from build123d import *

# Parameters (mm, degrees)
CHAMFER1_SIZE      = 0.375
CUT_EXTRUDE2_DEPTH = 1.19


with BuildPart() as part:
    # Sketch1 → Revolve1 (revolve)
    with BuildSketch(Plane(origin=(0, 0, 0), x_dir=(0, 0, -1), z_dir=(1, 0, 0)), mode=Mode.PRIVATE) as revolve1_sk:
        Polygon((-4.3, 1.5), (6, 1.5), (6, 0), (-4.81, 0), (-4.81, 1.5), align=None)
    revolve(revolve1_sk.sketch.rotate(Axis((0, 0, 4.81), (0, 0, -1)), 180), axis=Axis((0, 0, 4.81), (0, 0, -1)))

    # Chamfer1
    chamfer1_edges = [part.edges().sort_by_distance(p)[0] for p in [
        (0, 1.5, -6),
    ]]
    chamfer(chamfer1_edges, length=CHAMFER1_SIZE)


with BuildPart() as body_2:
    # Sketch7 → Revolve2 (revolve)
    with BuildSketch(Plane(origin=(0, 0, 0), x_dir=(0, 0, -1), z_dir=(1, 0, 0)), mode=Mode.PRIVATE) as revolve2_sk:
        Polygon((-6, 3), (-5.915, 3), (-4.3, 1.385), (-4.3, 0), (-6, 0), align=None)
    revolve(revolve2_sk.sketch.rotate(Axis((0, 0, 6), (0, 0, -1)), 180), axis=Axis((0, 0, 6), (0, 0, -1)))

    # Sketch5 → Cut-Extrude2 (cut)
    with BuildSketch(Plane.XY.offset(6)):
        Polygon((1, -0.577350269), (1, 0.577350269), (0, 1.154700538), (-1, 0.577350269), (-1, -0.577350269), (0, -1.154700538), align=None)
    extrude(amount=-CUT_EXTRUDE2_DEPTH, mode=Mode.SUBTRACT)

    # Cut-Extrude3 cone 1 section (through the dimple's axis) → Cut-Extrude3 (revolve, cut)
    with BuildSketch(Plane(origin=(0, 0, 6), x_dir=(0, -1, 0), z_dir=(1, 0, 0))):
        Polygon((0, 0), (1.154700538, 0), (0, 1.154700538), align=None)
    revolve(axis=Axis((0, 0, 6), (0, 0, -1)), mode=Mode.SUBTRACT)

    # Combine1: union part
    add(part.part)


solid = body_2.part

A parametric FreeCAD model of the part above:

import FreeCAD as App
import Part
import Sketcher
from FreeCAD import Vector
Q = App.Units.Quantity


def edges_at(feature, points):
    """Names of the edges that pass closest to the given points."""
    edges = feature.Shape.Edges
    near = lambda p: min(range(len(edges)), key=lambda i: edges[i].distToShape(Part.Vertex(*p))[0])
    return sorted({f"Edge{near(p) + 1}" for p in points})


def add_polygon(sketch, points):
    """Adds a closed chain of lines whose ends are joined by coincident constraints."""
    first, n = sketch.GeometryCount, len(points)
    for a, b in zip(points, points[1:] + points[:1]):
        sketch.addGeometry(Part.LineSegment(App.Vector(*a, 0), App.Vector(*b, 0)), False)
    for i in range(n):
        sketch.addConstraint(Sketcher.Constraint("Coincident", first + i, 2, first + (i + 1) % n, 1))

doc = App.newDocument("Part")
params = doc.addObject("Spreadsheet::Sheet", "Params")
for row, (alias, value) in enumerate([
    ("sketch1_width", "1.5 mm"),
    ("sketch1_height", "10.81 mm"),
    ("revolution_angle", "360 deg"),
    ("chamfer_size", "0.375 mm"),
    ("sketch2_width", "3 mm"),
    ("sketch2_height", "1.7 mm"),
    ("revolution2_angle", "360 deg"),
    ("pocket1_length", "1.19 mm"),
    ("groove_angle", "360 deg"),
], start=1):
    params.set(f"A{row}", alias)
    params.set(f"B{row}", "=" + value)
    params.setAlias(f"B{row}", alias)

body = doc.addObject("PartDesign::Body", "Body")

# Sketch on YZ plane
sketch1 = doc.addObject("Sketcher::SketchObject", "Sketch")
body.addObject(sketch1)
sketch1.AttachmentSupport = (doc.YZ_Plane, [""])
sketch1.MapMode = "FlatFace"
add_polygon(sketch1, [(1.5, -6), (1.5, 4.81), (0, 4.81), (0, -6)])  # lines 0-3
sketch1.addConstraint([
    Sketcher.Constraint("Vertical", 0),
    Sketcher.Constraint("Horizontal", 1),
    Sketcher.Constraint("Vertical", 2),
    Sketcher.Constraint("Horizontal", 3),
    Sketcher.Constraint("PointOnObject", 1, 2, -2),
    Sketcher.Constraint("DistanceX", 1, 2, 1, 1, 1.5),
    Sketcher.Constraint("DistanceY", 2, 2, -1, 1, 6.0),
    Sketcher.Constraint("DistanceY", 0, 1, 0, 2, 10.81),
])
sketch1.setExpression("Constraints[9]", "Params.sketch1_width")
sketch1.setExpression("Constraints[11]", "Params.sketch1_height")
revolution = doc.addObject("PartDesign::Revolution", "Revolution")
body.addObject(revolution)
revolution.Profile = sketch1
revolution.ReferenceAxis = (sketch1, ["V_Axis"])
revolution.setExpression("Angle", "Params.revolution_angle")
doc.recompute()

chamfer = doc.addObject("PartDesign::Chamfer", "Chamfer")
body.addObject(chamfer)
chamfer.Base = (revolution, edges_at(revolution, [(0, 1.5, -6)]))
chamfer.setExpression("Size", "Params.chamfer_size")
body2 = doc.addObject("PartDesign::Body", "Body001")

# Sketch on YZ plane
sketch2 = doc.addObject("Sketcher::SketchObject", "Sketch001")
body2.addObject(sketch2)
sketch2.AttachmentSupport = (doc.getObject("YZ_Plane001"), [""])
sketch2.MapMode = "FlatFace"
add_polygon(sketch2, [(3, 5.915), (3, 6), (0, 6), (0, 4.3), (1.385, 4.3)])  # lines 0-4
sketch2.addConstraint([
    Sketcher.Constraint("Vertical", 0),
    Sketcher.Constraint("Horizontal", 1),
    Sketcher.Constraint("Vertical", 2),
    Sketcher.Constraint("Horizontal", 3),
    Sketcher.Constraint("PointOnObject", 1, 2, -2),
    Sketcher.Constraint("DistanceX", 1, 2, 1, 1, 3.0),
    Sketcher.Constraint("Angle", 4, Q("45 deg")),
    Sketcher.Constraint("DistanceY", 2, 2, 2, 1, 1.7),
    Sketcher.Constraint("DistanceY", -1, 1, 0, 2, 6.0),
    Sketcher.Constraint("DistanceX", 3, 1, 3, 2, 1.385),
])
sketch2.setExpression("Constraints[10]", "Params.sketch2_width")
sketch2.setExpression("Constraints[12]", "Params.sketch2_height")
revolution2 = doc.addObject("PartDesign::Revolution", "Revolution001")
body2.addObject(revolution2)
revolution2.Profile = sketch2
revolution2.ReferenceAxis = (sketch2, ["V_Axis"])
revolution2.setExpression("Angle", "Params.revolution2_angle")

# Sketch on XY plane
sketch3 = doc.addObject("Sketcher::SketchObject", "Sketch002")
body2.addObject(sketch3)
sketch3.AttachmentSupport = (doc.getObject("XY_Plane001"), [""])
sketch3.MapMode = "FlatFace"
sketch3.AttachmentOffset = App.Placement(Vector(0, 0, 6), App.Rotation())
add_polygon(sketch3, [(1, -0.57735), (1, 0.57735), (0, 1.154701), (-1, 0.57735), (-1, -0.57735), (0, -1.154701)])  # lines 0-5
sketch3.addConstraint([
    Sketcher.Constraint("Vertical", 0),
    Sketcher.Constraint("Vertical", 3),
    Sketcher.Constraint("Symmetric", 0, 2, 3, 2, -1, 1),
    Sketcher.Constraint("Symmetric", 1, 2, 4, 2, -1, 1),
    Sketcher.Constraint("PointOnObject", 1, 2, -2),
    Sketcher.Constraint("Parallel", 2, 5),
    Sketcher.Constraint("Horizontal", 0, 2, 2, 2),
    Sketcher.Constraint("Angle", 1, Q("150 deg")),
    Sketcher.Constraint("DistanceX", -1, 1, 0, 2, 1.0),
    Sketcher.Constraint("DistanceY", 0, 1, 0, 2, 1.154701),
])
pocket1 = doc.addObject("PartDesign::Pocket", "Pocket")
body2.addObject(pocket1)
pocket1.Profile = sketch3
pocket1.setExpression("Length", "Params.pocket1_length")

# Sketch on YZ plane
sketch4 = doc.addObject("Sketcher::SketchObject", "Sketch003")
body2.addObject(sketch4)
sketch4.AttachmentSupport = (doc.getObject("YZ_Plane001"), [""])
sketch4.MapMode = "FlatFace"
add_polygon(sketch4, [(0, 6), (-1.154701, 6), (0, 4.845299)])  # lines 0-2
sketch4.addConstraint([
    Sketcher.Constraint("Horizontal", 0),
    Sketcher.Constraint("Vertical", 2),
    Sketcher.Constraint("PointOnObject", 1, 2, -2),
    Sketcher.Constraint("Equal", 0, 2),
    Sketcher.Constraint("DistanceY", -1, 1, 0, 2, 6.0),
    Sketcher.Constraint("DistanceX", 0, 2, 0, 1, 1.154701),
])
groove = doc.addObject("PartDesign::Groove", "Groove")
body2.addObject(groove)
groove.Profile = sketch4
groove.ReferenceAxis = (sketch4, ["V_Axis"])
groove.setExpression("Angle", "Params.groove_angle")
doc.recompute()

boolean = doc.addObject("PartDesign::Boolean", "Boolean")
body2.addObject(boolean)
boolean.Type = "Fuse"
boolean.addObjects([body])

doc.recompute()
